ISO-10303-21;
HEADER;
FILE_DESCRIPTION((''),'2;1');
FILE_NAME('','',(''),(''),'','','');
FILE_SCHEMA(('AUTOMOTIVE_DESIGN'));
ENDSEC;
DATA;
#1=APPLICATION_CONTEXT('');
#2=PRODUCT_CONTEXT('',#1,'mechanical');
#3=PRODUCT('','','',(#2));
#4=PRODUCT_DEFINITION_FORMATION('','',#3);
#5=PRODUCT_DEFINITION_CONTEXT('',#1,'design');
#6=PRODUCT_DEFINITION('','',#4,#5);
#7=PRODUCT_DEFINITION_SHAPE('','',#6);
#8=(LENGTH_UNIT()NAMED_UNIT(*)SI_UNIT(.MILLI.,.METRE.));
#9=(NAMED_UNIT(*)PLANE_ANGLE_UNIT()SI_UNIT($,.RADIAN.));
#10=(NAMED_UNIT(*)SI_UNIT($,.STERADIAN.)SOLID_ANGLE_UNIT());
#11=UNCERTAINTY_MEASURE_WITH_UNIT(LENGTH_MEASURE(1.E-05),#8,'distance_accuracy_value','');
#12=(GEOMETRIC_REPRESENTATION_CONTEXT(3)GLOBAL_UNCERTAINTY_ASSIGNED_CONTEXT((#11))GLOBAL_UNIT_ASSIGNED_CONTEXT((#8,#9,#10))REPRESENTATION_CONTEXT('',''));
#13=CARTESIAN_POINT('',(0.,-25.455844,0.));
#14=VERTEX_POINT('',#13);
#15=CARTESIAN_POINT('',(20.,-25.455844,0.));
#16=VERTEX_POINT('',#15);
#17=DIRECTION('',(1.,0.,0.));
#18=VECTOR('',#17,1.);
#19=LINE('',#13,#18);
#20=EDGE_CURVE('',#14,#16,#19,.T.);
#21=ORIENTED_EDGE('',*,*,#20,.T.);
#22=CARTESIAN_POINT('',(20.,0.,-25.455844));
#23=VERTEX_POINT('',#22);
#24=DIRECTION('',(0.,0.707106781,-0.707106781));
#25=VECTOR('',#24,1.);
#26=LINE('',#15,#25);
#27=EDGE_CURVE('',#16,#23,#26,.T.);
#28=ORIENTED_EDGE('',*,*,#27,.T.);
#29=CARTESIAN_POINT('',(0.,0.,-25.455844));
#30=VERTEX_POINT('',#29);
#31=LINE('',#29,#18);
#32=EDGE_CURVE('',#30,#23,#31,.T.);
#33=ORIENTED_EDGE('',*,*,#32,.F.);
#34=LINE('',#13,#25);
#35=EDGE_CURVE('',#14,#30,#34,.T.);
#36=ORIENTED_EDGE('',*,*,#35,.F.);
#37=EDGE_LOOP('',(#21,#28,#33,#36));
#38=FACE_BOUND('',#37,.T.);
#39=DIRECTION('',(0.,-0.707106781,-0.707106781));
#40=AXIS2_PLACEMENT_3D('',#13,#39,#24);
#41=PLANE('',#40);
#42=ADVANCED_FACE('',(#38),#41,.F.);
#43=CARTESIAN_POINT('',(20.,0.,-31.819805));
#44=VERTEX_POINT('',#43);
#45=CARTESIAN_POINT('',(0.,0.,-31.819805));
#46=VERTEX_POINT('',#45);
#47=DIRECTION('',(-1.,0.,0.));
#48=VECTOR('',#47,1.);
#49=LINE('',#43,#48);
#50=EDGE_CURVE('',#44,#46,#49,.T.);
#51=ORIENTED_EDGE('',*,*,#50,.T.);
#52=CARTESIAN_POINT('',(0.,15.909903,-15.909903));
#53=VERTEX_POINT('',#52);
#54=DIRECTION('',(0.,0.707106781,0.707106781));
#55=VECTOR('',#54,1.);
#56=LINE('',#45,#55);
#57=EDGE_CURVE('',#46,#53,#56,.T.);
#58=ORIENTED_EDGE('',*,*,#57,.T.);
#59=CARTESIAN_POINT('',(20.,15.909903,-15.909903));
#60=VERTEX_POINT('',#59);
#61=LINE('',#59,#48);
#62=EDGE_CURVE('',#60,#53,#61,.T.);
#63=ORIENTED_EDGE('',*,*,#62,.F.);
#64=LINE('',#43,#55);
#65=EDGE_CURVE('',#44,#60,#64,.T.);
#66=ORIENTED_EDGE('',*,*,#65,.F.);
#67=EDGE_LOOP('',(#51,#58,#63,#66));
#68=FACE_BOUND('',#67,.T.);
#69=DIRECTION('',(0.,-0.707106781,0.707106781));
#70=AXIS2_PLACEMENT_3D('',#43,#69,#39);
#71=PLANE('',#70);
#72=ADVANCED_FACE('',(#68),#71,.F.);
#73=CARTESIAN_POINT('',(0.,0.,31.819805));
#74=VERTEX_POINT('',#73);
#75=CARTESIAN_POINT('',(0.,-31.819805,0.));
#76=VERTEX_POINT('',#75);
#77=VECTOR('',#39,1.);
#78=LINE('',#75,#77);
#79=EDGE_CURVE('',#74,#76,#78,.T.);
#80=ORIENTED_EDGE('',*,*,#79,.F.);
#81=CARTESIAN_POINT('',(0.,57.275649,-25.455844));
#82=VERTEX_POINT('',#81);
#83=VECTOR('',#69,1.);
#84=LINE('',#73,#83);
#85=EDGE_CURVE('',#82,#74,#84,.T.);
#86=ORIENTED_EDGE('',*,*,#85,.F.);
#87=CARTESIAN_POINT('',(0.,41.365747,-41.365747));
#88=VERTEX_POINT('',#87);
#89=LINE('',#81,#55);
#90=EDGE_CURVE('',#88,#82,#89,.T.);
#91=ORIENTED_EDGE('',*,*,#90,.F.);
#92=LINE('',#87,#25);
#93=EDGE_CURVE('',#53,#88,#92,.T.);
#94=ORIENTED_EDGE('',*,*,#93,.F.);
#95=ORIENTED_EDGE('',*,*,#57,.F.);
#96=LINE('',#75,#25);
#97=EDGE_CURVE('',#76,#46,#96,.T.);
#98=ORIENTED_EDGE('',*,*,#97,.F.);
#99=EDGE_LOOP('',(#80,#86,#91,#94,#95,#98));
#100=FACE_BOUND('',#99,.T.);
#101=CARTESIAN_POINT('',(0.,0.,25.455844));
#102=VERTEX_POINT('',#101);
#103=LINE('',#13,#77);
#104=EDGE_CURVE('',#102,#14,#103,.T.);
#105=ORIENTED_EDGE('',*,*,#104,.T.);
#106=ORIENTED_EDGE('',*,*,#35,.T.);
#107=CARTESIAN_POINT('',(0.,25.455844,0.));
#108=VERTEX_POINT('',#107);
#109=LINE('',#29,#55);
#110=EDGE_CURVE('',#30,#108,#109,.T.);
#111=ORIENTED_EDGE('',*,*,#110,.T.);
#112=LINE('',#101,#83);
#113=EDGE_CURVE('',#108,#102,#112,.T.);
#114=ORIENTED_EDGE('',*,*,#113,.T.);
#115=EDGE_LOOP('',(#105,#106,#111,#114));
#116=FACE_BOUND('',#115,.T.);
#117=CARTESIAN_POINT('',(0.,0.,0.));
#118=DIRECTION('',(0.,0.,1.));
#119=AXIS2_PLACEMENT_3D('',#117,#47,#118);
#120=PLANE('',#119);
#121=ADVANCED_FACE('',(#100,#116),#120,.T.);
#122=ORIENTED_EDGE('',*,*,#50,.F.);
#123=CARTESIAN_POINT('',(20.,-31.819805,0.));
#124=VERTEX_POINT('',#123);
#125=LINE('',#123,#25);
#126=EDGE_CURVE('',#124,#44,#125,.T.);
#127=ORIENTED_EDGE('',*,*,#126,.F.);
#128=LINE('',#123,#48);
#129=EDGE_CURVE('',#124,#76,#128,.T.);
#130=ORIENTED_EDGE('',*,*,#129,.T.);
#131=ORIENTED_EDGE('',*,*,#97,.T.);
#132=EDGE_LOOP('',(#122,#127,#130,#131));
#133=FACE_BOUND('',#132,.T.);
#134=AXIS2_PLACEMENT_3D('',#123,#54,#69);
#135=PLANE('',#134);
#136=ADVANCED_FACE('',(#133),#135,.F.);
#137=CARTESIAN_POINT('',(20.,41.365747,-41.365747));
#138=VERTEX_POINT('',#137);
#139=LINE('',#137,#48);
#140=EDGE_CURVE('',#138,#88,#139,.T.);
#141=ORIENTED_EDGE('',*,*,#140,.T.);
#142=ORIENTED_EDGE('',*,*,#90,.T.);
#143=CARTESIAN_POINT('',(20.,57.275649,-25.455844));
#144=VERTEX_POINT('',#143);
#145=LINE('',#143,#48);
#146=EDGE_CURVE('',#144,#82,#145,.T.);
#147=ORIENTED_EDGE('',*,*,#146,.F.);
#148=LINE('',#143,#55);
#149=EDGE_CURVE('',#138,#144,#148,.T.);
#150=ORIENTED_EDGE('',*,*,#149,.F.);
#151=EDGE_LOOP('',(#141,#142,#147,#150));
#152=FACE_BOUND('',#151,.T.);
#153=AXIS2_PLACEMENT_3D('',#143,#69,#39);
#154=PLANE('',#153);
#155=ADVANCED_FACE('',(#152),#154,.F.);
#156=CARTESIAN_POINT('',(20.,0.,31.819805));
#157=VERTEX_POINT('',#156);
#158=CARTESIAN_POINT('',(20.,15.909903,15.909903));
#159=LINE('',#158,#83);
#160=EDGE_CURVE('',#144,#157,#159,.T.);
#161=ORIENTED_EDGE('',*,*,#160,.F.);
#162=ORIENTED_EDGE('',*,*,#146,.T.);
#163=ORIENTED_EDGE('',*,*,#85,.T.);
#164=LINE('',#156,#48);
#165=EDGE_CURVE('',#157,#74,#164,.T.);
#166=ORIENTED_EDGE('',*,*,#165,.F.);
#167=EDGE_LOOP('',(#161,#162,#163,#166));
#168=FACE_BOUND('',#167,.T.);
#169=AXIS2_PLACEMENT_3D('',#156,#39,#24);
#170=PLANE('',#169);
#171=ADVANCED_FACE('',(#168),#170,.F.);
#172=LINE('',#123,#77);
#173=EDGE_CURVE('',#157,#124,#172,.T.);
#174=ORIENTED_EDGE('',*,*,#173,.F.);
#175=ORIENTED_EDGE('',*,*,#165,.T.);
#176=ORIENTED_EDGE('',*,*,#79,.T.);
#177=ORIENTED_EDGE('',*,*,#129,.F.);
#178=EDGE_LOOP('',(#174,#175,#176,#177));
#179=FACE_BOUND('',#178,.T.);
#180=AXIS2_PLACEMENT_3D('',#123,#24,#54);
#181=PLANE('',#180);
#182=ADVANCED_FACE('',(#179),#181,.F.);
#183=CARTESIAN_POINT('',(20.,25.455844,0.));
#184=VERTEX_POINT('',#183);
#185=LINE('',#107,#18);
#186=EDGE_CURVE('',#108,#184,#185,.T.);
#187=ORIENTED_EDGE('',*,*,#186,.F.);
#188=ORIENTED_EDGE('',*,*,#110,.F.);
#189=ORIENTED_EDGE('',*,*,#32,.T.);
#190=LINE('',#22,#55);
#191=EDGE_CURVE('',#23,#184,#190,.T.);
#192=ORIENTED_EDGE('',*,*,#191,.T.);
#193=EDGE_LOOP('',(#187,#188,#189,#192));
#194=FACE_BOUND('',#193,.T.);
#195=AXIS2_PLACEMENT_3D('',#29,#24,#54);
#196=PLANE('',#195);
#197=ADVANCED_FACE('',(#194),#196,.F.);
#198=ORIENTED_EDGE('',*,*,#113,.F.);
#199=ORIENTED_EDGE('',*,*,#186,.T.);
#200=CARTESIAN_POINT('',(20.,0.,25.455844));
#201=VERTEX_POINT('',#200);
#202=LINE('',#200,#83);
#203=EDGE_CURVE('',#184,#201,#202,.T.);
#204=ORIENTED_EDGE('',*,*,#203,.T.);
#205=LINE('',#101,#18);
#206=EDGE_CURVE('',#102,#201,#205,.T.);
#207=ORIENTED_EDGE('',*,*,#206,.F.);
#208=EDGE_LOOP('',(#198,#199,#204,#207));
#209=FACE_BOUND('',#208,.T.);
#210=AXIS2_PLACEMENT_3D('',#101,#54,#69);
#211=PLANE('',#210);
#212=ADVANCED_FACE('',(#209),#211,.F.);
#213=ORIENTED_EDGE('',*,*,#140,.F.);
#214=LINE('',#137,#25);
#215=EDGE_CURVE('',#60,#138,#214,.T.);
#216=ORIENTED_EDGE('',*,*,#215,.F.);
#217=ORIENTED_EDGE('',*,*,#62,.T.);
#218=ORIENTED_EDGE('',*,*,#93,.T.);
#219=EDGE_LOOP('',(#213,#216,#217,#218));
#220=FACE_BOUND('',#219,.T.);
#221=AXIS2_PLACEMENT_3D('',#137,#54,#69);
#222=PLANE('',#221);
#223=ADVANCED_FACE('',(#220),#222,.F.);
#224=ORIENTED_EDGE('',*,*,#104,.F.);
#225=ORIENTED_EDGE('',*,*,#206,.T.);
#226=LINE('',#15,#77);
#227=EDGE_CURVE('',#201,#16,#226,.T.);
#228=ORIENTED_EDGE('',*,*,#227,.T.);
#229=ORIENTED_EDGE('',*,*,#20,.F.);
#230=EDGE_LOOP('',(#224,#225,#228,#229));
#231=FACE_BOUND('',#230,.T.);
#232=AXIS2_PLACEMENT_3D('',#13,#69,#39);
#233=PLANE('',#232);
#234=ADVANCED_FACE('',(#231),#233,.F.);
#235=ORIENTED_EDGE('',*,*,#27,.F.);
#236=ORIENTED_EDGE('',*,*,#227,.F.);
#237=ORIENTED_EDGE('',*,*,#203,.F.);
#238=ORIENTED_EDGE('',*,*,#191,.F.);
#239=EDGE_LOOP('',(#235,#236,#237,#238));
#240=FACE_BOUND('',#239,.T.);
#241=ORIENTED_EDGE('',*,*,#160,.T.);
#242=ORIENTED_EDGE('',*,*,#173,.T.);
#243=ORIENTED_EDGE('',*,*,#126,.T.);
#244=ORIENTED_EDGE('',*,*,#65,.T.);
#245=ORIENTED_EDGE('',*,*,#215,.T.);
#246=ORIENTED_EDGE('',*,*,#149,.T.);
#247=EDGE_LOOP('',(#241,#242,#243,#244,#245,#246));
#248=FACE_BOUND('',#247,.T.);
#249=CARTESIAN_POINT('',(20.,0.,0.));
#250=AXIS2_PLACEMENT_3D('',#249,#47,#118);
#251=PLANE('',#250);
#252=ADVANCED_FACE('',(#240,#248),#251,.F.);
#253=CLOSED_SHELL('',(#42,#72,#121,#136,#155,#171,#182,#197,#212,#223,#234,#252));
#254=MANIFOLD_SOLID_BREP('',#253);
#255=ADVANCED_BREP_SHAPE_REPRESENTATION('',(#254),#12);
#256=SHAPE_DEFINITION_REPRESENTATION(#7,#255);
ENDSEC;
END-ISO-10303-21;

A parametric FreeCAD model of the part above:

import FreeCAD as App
import Part
import Sketcher
from FreeCAD import Vector
Q = App.Units.Quantity

doc = App.newDocument("Part")
body = doc.addObject("PartDesign::Body", "Body")

# Sketch on YZ plane
sketch1 = doc.addObject("Sketcher::SketchObject", "Sketch")
body.addObject(sketch1)
sketch1.AttachmentSupport = (doc.YZ_Plane, [""])
sketch1.MapMode = "FlatFace"
sketch1.addGeometry([
    Part.LineSegment(Vector(-32, 0, 0), Vector(0, -32, 0)),  # 0
    Part.LineSegment(Vector(0, -32, 0), Vector(16, -16, 0)),  # 1
    Part.LineSegment(Vector(16, -16, 0), Vector(41, -41, 0)),  # 2
    Part.LineSegment(Vector(41, -41, 0), Vector(57, -25, 0)),  # 3
    Part.LineSegment(Vector(57, -25, 0), Vector(16, 16, 0)),  # 4
    Part.LineSegment(Vector(16, 16, 0), Vector(0, 32, 0)),  # 5
    Part.LineSegment(Vector(0, 32, 0), Vector(-32, 0, 0)),  # 6
], False)
sketch1.addConstraint([
    Sketcher.Constraint("Coincident", 0, 2, 1, 1),
    Sketcher.Constraint("Coincident", 1, 2, 2, 1),
    Sketcher.Constraint("Coincident", 2, 2, 3, 1),
    Sketcher.Constraint("Coincident", 3, 2, 4, 1),
    Sketcher.Constraint("Coincident", 4, 2, 5, 1),
    Sketcher.Constraint("Coincident", 5, 2, 6, 1),
    Sketcher.Constraint("Coincident", 6, 2, 0, 1),
    Sketcher.Constraint("Symmetric", 0, 2, 5, 2, -1, 1),
    Sketcher.Constraint("Symmetric", 1, 2, 4, 2, -1),
    Sketcher.Constraint("PointOnObject", 0, 2, -2),
    Sketcher.Constraint("PointOnObject", 6, 2, -1),
    Sketcher.Constraint("Perpendicular", 0, 1),
    Sketcher.Constraint("Perpendicular", 1, 2),
    Sketcher.Constraint("Perpendicular", 2, 3),
    Sketcher.Constraint("Perpendicular", 3, 4),
    Sketcher.Constraint("Parallel", 4, 5),
    Sketcher.Constraint("Equal", 1, 3),
    Sketcher.Constraint("Distance", 0, Q("45 mm")),
    Sketcher.Constraint("Distance", 2, Q("36 mm")),
])
pad1 = doc.addObject("PartDesign::Pad", "Pad")
body.addObject(pad1)
pad1.Profile = sketch1
pad1.Length = 20

# Sketch on YZ plane
sketch2 = doc.addObject("Sketcher::SketchObject", "Sketch001")
body.addObject(sketch2)
sketch2.AttachmentSupport = (doc.YZ_Plane, [""])
sketch2.MapMode = "FlatFace"
sketch2.AttachmentOffset = App.Placement(Vector(0, 0, 20), App.Rotation())
sketch2.addGeometry([
    Part.LineSegment(Vector(-25, 0, 0), Vector(0, -25, 0)),
    Part.LineSegment(Vector(0, -25, 0), Vector(25, 0, 0)),
    Part.LineSegment(Vector(25, 0, 0), Vector(0, 25, 0)),
    Part.LineSegment(Vector(0, 25, 0), Vector(-25, 0, 0)),
], False)
sketch2.addConstraint([
    Sketcher.Constraint("Coincident", 0, 2, 1, 1),
    Sketcher.Constraint("Coincident", 1, 2, 2, 1),
    Sketcher.Constraint("Coincident", 2, 2, 3, 1),
    Sketcher.Constraint("Coincident", 3, 2, 0, 1),
    Sketcher.Constraint("Symmetric", 0, 2, 2, 2, -1, 1),
    Sketcher.Constraint("Symmetric", 1, 2, 3, 2, -1, 1),
    Sketcher.Constraint("PointOnObject", 0, 2, -2),
    Sketcher.Constraint("PointOnObject", 1, 2, -1),
    Sketcher.Constraint("Perpendicular", 0, 1),
    Sketcher.Constraint("Distance", 0, Q("36 mm")),
])
pocket1 = doc.addObject("PartDesign::Pocket", "Pocket")
body.addObject(pocket1)
pocket1.Profile = sketch2
pocket1.Length = 20

doc.recompute()
